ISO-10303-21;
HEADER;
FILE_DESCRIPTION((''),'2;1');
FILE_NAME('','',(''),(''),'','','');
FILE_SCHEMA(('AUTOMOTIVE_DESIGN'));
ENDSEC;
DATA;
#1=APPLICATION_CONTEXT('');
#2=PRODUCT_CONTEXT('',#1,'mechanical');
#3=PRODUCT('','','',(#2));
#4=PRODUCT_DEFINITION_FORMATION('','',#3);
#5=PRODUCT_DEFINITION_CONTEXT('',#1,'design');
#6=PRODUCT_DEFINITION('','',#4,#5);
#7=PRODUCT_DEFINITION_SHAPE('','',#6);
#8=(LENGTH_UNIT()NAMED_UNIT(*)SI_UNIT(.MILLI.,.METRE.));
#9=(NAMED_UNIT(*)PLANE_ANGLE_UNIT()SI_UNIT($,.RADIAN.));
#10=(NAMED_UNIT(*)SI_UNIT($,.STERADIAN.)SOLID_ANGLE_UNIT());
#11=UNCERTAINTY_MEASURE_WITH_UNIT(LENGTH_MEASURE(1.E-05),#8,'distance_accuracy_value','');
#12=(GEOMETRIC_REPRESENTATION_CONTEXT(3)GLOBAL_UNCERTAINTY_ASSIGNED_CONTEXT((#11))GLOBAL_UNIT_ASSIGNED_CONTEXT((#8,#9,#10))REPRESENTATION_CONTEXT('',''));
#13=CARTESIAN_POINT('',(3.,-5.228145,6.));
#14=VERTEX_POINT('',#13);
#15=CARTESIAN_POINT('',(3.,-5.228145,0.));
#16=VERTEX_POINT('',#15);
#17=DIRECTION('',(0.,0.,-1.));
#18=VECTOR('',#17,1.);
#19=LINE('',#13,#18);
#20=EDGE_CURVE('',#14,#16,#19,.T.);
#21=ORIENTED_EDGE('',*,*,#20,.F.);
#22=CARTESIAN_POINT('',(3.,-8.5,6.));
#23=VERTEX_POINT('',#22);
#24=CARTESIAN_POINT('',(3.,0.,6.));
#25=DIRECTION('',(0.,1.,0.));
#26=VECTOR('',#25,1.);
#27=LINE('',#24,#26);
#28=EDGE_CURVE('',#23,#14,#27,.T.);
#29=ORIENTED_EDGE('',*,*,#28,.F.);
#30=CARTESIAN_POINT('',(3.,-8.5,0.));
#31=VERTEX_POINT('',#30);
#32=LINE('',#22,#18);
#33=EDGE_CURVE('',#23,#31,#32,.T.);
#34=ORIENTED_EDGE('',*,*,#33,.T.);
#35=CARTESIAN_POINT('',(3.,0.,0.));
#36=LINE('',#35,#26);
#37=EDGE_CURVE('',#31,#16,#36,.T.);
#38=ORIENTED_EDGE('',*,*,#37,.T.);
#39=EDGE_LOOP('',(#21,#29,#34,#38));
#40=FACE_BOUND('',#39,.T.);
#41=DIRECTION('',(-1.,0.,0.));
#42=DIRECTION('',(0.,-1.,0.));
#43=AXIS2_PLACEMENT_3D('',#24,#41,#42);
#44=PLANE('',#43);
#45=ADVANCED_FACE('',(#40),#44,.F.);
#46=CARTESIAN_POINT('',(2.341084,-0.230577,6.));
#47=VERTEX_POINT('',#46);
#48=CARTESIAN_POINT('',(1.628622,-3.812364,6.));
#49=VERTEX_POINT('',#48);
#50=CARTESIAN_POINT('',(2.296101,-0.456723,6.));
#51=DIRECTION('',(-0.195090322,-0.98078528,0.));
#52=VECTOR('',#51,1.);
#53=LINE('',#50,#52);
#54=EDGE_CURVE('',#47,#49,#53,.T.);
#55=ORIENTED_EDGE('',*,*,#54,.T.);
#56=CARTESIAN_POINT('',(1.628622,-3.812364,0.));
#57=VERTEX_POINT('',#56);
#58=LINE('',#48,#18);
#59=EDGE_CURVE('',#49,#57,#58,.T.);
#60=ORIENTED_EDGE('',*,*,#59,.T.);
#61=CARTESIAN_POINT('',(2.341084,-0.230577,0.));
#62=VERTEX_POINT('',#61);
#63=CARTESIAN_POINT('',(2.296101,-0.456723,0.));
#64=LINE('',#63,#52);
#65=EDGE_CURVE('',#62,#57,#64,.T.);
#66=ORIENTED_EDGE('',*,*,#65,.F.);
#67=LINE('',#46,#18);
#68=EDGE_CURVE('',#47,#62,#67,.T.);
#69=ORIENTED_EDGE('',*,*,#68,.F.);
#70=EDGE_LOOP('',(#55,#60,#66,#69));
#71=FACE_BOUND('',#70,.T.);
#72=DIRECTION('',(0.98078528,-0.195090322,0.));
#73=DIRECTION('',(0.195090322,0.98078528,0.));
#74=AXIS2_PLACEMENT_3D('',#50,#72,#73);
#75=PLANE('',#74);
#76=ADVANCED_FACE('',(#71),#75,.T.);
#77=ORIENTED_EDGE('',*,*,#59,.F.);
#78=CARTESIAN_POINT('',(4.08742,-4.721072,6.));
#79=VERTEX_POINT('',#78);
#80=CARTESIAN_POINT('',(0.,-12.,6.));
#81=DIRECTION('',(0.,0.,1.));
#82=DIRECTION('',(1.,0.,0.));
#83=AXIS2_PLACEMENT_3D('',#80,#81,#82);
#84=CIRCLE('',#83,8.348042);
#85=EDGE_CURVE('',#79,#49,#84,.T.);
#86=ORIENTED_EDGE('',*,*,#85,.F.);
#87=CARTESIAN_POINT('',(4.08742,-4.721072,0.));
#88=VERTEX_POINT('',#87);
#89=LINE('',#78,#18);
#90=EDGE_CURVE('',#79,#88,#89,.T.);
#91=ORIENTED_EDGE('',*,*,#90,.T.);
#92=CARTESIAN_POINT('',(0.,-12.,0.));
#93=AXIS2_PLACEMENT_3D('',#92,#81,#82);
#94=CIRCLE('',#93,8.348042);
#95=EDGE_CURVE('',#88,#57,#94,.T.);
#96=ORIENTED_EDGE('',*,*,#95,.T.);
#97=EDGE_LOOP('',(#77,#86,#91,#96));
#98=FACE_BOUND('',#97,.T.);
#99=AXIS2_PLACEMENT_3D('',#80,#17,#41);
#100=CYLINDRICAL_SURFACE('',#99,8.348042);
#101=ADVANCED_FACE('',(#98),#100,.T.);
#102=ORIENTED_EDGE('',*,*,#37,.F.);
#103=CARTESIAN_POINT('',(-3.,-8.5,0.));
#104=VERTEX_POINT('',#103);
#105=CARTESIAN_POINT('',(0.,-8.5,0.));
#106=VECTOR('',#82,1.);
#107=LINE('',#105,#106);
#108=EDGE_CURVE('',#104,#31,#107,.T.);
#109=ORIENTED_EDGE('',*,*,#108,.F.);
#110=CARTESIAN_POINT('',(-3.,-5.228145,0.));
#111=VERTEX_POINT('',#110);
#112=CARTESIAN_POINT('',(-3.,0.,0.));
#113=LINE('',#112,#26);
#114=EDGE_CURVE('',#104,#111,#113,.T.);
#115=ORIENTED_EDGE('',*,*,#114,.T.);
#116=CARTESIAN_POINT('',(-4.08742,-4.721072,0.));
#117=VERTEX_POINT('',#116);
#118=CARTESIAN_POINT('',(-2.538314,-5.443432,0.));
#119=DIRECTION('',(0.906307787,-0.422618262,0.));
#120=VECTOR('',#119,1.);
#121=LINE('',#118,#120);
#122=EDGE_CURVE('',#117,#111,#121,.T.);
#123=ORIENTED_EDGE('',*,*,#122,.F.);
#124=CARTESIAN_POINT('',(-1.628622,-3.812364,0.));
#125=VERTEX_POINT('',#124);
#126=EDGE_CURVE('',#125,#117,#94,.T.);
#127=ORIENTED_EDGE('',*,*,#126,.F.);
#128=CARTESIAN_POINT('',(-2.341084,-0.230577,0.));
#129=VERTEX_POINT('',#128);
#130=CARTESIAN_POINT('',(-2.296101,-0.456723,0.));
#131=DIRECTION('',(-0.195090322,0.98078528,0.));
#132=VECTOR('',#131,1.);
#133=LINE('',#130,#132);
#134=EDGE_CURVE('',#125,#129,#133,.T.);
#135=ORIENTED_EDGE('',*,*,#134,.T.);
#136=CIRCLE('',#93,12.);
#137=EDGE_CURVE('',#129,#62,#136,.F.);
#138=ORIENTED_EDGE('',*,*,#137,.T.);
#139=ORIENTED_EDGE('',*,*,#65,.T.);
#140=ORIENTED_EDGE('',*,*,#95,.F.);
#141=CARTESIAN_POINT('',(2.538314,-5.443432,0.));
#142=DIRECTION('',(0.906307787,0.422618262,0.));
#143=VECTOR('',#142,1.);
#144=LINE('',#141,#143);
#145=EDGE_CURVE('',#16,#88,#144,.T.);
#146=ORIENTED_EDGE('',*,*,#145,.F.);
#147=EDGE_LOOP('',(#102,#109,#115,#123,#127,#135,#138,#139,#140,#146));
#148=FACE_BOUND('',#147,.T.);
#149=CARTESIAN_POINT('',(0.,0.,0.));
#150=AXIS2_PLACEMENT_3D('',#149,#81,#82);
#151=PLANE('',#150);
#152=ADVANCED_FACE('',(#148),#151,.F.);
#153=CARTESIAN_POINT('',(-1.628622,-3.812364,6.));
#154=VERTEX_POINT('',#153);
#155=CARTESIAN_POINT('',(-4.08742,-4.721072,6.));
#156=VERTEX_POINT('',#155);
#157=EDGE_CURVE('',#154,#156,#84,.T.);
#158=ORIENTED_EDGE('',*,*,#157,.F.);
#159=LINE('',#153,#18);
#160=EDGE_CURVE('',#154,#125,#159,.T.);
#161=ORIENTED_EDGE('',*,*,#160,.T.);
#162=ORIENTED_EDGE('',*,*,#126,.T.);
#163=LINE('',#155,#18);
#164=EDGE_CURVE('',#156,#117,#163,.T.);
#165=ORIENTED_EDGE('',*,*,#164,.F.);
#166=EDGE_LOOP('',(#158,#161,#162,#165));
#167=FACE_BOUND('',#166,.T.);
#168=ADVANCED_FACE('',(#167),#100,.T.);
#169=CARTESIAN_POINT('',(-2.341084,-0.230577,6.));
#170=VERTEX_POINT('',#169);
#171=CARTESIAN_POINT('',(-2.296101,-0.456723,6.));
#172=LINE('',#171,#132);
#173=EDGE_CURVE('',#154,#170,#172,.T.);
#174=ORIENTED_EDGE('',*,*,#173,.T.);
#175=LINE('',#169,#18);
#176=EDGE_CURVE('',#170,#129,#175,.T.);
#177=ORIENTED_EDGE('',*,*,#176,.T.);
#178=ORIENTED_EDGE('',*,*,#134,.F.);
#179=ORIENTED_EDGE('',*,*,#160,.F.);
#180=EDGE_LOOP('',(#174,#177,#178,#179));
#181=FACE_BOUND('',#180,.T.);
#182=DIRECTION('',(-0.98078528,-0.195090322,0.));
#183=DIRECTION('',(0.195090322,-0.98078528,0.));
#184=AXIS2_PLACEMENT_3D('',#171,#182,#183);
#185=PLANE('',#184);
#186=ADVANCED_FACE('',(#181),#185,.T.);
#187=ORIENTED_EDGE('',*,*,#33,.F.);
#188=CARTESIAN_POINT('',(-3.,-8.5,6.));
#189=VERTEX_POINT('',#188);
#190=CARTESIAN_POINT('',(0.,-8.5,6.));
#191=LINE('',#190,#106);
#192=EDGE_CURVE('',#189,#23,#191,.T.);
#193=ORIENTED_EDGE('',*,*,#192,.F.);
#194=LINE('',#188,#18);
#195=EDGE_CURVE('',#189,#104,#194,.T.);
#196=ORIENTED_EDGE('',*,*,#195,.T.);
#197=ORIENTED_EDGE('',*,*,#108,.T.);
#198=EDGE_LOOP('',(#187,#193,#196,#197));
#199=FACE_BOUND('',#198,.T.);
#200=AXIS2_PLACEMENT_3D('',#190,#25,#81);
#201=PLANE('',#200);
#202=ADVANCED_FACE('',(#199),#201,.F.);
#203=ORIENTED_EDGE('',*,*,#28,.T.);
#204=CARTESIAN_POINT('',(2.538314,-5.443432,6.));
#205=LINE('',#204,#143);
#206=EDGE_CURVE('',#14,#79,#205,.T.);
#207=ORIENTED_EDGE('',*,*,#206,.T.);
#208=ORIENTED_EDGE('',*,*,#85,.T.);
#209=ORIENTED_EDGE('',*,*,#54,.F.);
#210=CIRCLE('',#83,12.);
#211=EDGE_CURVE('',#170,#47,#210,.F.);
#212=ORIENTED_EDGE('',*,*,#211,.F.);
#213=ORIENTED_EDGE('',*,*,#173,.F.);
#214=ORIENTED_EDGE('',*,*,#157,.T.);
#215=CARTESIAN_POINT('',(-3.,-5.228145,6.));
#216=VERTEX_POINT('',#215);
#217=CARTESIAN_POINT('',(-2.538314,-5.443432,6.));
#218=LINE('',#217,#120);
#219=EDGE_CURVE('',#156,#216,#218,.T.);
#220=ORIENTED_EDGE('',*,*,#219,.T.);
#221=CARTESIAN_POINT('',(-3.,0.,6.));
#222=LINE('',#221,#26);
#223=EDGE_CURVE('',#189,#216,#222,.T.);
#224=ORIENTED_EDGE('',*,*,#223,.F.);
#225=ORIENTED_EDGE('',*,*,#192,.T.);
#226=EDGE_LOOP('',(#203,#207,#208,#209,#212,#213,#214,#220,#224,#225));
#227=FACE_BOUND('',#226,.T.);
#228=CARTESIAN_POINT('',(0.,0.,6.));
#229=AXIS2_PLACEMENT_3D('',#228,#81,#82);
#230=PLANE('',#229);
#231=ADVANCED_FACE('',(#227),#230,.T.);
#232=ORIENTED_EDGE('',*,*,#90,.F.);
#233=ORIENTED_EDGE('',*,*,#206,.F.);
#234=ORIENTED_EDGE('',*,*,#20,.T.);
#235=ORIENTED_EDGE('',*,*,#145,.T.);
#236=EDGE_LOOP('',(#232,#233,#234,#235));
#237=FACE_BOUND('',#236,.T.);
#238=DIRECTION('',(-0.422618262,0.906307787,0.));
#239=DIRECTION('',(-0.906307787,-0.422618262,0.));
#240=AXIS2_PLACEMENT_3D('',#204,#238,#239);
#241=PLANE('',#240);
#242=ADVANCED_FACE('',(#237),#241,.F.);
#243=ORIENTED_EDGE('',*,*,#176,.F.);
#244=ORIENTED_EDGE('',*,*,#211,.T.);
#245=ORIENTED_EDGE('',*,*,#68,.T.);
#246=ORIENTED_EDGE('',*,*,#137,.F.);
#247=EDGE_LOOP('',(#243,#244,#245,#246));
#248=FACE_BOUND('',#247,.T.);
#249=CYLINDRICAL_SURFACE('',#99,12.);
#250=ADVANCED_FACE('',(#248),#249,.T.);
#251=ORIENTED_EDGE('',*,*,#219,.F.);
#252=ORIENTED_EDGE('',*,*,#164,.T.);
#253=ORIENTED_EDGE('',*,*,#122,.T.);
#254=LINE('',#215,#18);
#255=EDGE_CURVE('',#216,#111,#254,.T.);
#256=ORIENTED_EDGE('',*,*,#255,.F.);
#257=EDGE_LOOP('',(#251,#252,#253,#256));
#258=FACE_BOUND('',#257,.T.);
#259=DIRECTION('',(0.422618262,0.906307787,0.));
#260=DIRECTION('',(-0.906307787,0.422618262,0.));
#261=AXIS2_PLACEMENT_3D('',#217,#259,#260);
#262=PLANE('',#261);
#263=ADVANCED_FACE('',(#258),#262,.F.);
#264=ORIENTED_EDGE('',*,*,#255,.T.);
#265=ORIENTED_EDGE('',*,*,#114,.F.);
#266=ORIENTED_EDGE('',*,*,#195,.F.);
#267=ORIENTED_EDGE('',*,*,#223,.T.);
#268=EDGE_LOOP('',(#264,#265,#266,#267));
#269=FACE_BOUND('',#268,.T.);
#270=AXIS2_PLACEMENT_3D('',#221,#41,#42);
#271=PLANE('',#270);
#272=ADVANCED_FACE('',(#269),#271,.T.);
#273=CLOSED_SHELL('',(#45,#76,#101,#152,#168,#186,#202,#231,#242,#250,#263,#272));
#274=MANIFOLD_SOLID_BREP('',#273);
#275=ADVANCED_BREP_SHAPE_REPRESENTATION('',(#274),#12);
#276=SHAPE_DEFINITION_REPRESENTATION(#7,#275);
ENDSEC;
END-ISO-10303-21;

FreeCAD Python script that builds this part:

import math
import FreeCAD as App
import Part
import Sketcher
Q = App.Units.Quantity

doc = App.newDocument("Part")
body = doc.addObject("PartDesign::Body", "Body")

sketch1 = body.newObject("Sketcher::SketchObject", "Sketch")
sketch1.AttachmentSupport = (doc.getObject("XY_Plane"), [""])
sketch1.MapMode = "FlatFace"
sketch1.addGeometry([
    Part.LineSegment(App.Vector(-3, -5.228145, 0), App.Vector(-3, -8.5, 0)),
    Part.LineSegment(App.Vector(-3, -8.5, 0), App.Vector(3, -8.5, 0)),
    Part.LineSegment(App.Vector(3, -8.5, 0), App.Vector(3, -5.228145, 0)),
    Part.LineSegment(App.Vector(3, -5.228145, 0), App.Vector(4.08742, -4.721072, 0)),
    Part.ArcOfCircle(Part.Circle(App.Vector(0, -12, 0), App.Vector(0, 0, 1), 8.348041), math.radians(60.68398), math.radians(67.5)),
    Part.ArcOfCircle(Part.Circle(App.Vector(0, -12, 0), App.Vector(0, 0, 1), 8.348042), math.radians(67.5), math.radians(78.75)),
    Part.LineSegment(App.Vector(1.628622, -3.812364, 0), App.Vector(2.341084, -0.230577, 0)),
    Part.ArcOfCircle(Part.Circle(App.Vector(0, -12, 0), App.Vector(0, 0, 1), 12), math.radians(78.75), math.radians(90)),
    Part.ArcOfCircle(Part.Circle(App.Vector(0, -12, 0), App.Vector(0, 0, 1), 12), math.radians(90), math.radians(101.25)),
    Part.LineSegment(App.Vector(-2.341084, -0.230577, 0), App.Vector(-1.628622, -3.812364, 0)),
    Part.ArcOfCircle(Part.Circle(App.Vector(0, -12, 0), App.Vector(0, 0, 1), 8.348042), math.radians(101.25), math.radians(112.5)),
    Part.ArcOfCircle(Part.Circle(App.Vector(0, -12, 0), App.Vector(0, 0, 1), 8.348041), math.radians(112.5), math.radians(119.31602)),
    Part.LineSegment(App.Vector(-4.08742, -4.721072, 0), App.Vector(-3, -5.228145, 0)),
], False)
sketch1.addConstraint([
    Sketcher.Constraint("Coincident", 0, 2, 1, 1),
    Sketcher.Constraint("Coincident", 1, 2, 2, 1),
    Sketcher.Constraint("Coincident", 2, 2, 3, 1),
    Sketcher.Constraint("Coincident", 3, 2, 4, 1),
    Sketcher.Constraint("Tangent", 4, 2, 5, 1),
    Sketcher.Constraint("Coincident", 5, 2, 6, 1),
    Sketcher.Constraint("Coincident", 6, 2, 7, 1),
    Sketcher.Constraint("Tangent", 7, 2, 8, 1),
    Sketcher.Constraint("Coincident", 8, 2, 9, 1),
    Sketcher.Constraint("Coincident", 9, 2, 10, 1),
    Sketcher.Constraint("Tangent", 10, 2, 11, 1),
    Sketcher.Constraint("Coincident", 11, 2, 12, 1),
    Sketcher.Constraint("Coincident", 12, 2, 0, 1),
    Sketcher.Constraint("Vertical", 0),
    Sketcher.Constraint("Horizontal", 1),
    Sketcher.Constraint("Vertical", 2),
    Sketcher.Constraint("Coincident", 7, 2, -1, 1),
    Sketcher.Constraint("Coincident", 7, 3, 4, 3),
    Sketcher.Constraint("Coincident", 10, 3, 4, 3),
    Sketcher.Constraint("Equal", 4, 5),
    Sketcher.Constraint("Equal", 7, 8),
    Sketcher.Constraint("Equal", 5, 10),
    Sketcher.Constraint("Equal", 10, 11),
    Sketcher.Constraint("Symmetric", 6, 2, 8, 2, -2),
    Sketcher.Constraint("Symmetric", 2, 2, 12, 2, -2),
    Sketcher.Constraint("Horizontal", 5, 2, 9, 2),
    Sketcher.Constraint("Horizontal", 4, 2, 10, 2),
    Sketcher.Constraint("Horizontal", 3, 2, 11, 2),
    Sketcher.Constraint("Radius", 7, 12.0),
    Sketcher.Constraint("DistanceX", 1, 1, 1, 2, 6.0),
    Sketcher.Constraint("Angle", 3, Q("25 deg")),
    Sketcher.Constraint("DistanceY", 0, 2, -1, 1, 8.5),
    Sketcher.Constraint("Angle", 6, Q("78.75 deg")),
    Sketcher.Constraint("Radius", 4, 8.348041),
    Sketcher.Constraint("DistanceX", 5, 2, 3, 2, 2.458798),
    Sketcher.Constraint("DistanceY", 0, 2, 0, 1, 3.271855),
    Sketcher.Constraint("DistanceY", 2, 2, 4, 2, 0.940729),
])
pad1 = body.newObject("PartDesign::Pad", "Pad")
pad1.Profile = sketch1
pad1.Length = 6

doc.recompute()
